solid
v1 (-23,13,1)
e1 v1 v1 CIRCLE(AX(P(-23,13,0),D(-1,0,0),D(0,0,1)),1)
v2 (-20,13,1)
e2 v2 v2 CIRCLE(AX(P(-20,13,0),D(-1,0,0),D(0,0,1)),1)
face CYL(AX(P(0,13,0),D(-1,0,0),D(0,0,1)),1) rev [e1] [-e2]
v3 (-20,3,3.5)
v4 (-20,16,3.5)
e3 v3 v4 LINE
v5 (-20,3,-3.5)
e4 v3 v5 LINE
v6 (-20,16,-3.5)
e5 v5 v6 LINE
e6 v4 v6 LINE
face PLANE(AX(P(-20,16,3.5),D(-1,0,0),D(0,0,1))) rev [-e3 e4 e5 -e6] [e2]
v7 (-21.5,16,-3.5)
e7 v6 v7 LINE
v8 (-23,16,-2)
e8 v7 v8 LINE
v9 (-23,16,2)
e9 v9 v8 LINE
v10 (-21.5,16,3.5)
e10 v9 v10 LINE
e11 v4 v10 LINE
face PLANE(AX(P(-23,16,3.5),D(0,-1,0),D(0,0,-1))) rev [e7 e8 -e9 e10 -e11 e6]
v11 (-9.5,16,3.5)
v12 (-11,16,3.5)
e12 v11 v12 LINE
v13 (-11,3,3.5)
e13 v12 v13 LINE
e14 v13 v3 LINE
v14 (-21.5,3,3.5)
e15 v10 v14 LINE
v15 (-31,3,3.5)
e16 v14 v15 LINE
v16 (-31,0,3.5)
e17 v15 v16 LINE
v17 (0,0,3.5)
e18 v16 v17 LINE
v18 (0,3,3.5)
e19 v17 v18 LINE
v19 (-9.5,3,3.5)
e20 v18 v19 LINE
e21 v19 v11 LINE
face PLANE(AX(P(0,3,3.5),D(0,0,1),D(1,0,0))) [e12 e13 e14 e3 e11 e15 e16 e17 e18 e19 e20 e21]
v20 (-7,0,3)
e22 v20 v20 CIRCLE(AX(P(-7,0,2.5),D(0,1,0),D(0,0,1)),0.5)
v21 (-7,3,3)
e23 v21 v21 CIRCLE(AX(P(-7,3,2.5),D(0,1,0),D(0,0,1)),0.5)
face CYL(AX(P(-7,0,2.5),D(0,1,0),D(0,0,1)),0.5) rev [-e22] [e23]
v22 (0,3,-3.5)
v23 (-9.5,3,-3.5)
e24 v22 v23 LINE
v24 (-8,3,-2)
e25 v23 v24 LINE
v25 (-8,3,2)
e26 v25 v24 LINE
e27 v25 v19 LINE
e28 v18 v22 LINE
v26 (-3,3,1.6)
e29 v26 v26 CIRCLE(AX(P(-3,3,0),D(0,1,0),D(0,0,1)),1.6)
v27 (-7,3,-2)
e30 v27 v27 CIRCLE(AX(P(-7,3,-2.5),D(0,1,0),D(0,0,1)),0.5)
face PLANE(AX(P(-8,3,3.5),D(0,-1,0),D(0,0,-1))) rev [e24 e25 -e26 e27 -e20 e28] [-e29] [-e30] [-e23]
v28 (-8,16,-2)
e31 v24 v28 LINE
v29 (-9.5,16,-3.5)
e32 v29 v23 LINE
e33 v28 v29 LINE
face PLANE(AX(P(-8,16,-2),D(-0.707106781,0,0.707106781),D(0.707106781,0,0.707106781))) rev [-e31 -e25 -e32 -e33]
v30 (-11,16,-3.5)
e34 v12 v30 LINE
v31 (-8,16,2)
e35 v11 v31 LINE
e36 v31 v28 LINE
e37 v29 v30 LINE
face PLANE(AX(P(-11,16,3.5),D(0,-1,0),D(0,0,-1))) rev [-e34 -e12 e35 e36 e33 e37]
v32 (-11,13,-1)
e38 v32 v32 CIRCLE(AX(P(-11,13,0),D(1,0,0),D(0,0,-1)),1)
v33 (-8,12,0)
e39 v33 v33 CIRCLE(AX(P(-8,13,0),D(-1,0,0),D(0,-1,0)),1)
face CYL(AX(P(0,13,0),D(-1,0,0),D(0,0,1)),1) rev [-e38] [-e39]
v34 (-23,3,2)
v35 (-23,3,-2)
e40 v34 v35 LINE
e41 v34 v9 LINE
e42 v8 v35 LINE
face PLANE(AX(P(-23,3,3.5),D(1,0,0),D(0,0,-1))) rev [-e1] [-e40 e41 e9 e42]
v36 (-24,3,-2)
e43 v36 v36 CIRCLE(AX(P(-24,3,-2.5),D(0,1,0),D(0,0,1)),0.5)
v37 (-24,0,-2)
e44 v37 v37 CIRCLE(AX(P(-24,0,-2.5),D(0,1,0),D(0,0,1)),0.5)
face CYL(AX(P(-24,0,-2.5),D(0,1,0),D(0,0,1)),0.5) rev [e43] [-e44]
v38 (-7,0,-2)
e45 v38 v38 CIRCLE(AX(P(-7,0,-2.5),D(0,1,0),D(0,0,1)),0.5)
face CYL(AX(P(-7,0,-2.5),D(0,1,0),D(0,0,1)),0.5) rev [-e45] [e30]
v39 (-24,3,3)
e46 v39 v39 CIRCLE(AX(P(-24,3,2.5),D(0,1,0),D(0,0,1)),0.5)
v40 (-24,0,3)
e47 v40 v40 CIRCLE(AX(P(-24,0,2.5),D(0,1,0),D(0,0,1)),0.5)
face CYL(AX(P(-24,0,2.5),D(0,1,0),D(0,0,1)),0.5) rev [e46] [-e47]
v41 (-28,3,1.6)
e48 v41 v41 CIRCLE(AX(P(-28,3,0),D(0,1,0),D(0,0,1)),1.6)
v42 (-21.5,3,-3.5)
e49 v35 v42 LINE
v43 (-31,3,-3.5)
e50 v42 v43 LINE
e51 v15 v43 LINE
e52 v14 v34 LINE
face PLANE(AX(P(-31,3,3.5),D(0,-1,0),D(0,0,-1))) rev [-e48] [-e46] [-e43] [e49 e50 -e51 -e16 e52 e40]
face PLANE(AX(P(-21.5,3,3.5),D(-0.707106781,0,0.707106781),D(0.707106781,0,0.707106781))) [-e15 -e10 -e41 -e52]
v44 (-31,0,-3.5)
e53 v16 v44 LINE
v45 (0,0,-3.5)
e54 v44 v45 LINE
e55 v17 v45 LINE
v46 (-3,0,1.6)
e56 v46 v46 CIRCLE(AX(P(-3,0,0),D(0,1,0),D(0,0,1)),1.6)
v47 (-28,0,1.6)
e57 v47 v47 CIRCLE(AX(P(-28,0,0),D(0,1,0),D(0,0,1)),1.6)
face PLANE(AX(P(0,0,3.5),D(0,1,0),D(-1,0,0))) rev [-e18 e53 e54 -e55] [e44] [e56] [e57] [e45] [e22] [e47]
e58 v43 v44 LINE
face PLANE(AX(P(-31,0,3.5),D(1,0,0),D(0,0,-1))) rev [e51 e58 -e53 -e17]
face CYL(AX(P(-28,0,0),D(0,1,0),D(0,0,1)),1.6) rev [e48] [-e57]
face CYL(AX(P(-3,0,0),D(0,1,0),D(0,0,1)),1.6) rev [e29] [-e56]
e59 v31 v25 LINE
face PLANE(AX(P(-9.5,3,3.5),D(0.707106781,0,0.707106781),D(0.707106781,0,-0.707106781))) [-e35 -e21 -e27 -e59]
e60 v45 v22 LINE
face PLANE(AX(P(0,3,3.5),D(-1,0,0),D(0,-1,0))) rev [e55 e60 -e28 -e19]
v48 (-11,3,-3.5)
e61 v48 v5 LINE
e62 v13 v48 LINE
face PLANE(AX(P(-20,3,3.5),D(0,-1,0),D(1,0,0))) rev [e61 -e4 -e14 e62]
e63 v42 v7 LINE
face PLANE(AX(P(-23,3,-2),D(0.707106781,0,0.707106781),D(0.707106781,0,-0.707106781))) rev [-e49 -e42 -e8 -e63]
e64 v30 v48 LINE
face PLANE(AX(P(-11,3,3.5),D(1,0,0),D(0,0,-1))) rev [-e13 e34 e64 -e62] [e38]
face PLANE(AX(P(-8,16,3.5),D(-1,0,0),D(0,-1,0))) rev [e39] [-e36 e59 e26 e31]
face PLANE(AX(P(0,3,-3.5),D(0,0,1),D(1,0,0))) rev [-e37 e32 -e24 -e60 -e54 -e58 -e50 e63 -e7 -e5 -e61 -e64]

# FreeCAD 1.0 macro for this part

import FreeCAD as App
import Part
import Sketcher

V = App.Vector


def edges_at(feature, points):
    """Names of the edges that pass closest to the given points."""
    edges = feature.Shape.Edges
    near = lambda p: min(range(len(edges)), key=lambda i: edges[i].distToShape(Part.Vertex(*p))[0])
    return sorted({f"Edge{near(p) + 1}" for p in points})

doc = App.newDocument("Part")
body = doc.addObject("PartDesign::Body", "Body")

sketch1 = body.newObject("Sketcher::SketchObject", "Sketch")
sketch1.AttachmentSupport = (doc.getObject("XY_Plane"), [""])
sketch1.MapMode = "FlatFace"
sketch1.addGeometry(Part.LineSegment(V(-31, 0, 0), V(0, 0, 0)), False)
sketch1.addGeometry(Part.LineSegment(V(0, 0, 0), V(0, 3, 0)), False)
sketch1.addGeometry(Part.LineSegment(V(0, 3, 0), V(-8, 3, 0)), False)
sketch1.addGeometry(Part.LineSegment(V(-8, 3, 0), V(-8, 16, 0)), False)
sketch1.addGeometry(Part.LineSegment(V(-8, 16, 0), V(-11, 16, 0)), False)
sketch1.addGeometry(Part.LineSegment(V(-11, 16, 0), V(-11, 3, 0)), False)
sketch1.addGeometry(Part.LineSegment(V(-11, 3, 0), V(-20, 3, 0)), False)
sketch1.addGeometry(Part.LineSegment(V(-20, 3, 0), V(-20, 16, 0)), False)
sketch1.addGeometry(Part.LineSegment(V(-20, 16, 0), V(-23, 16, 0)), False)
sketch1.addGeometry(Part.LineSegment(V(-23, 16, 0), V(-23, 3, 0)), False)
sketch1.addGeometry(Part.LineSegment(V(-23, 3, 0), V(-31, 3, 0)), False)
sketch1.addGeometry(Part.LineSegment(V(-31, 3, 0), V(-31, 0, 0)), False)
sketch1.addConstraint(Sketcher.Constraint("Coincident", 0, 2, 1, 1))
sketch1.addConstraint(Sketcher.Constraint("Coincident", 1, 2, 2, 1))
sketch1.addConstraint(Sketcher.Constraint("Coincident", 2, 2, 3, 1))
sketch1.addConstraint(Sketcher.Constraint("Coincident", 3, 2, 4, 1))
sketch1.addConstraint(Sketcher.Constraint("Coincident", 4, 2, 5, 1))
sketch1.addConstraint(Sketcher.Constraint("Coincident", 5, 2, 6, 1))
sketch1.addConstraint(Sketcher.Constraint("Coincident", 6, 2, 7, 1))
sketch1.addConstraint(Sketcher.Constraint("Coincident", 7, 2, 8, 1))
sketch1.addConstraint(Sketcher.Constraint("Coincident", 8, 2, 9, 1))
sketch1.addConstraint(Sketcher.Constraint("Coincident", 9, 2, 10, 1))
sketch1.addConstraint(Sketcher.Constraint("Coincident", 10, 2, 11, 1))
sketch1.addConstraint(Sketcher.Constraint("Coincident", 11, 2, 0, 1))
sketch1.addConstraint(Sketcher.Constraint("Horizontal", 0))
sketch1.addConstraint(Sketcher.Constraint("Vertical", 1))
sketch1.addConstraint(Sketcher.Constraint("Horizontal", 2))
sketch1.addConstraint(Sketcher.Constraint("Vertical", 3))
sketch1.addConstraint(Sketcher.Constraint("Horizontal", 4))
sketch1.addConstraint(Sketcher.Constraint("Vertical", 5))
sketch1.addConstraint(Sketcher.Constraint("Horizontal", 6))
sketch1.addConstraint(Sketcher.Constraint("Vertical", 7))
sketch1.addConstraint(Sketcher.Constraint("Horizontal", 8))
sketch1.addConstraint(Sketcher.Constraint("Vertical", 9))
sketch1.addConstraint(Sketcher.Constraint("Horizontal", 10))
sketch1.addConstraint(Sketcher.Constraint("Vertical", 11))
sketch1.addConstraint(Sketcher.Constraint("Coincident", 0, 2, -1, 1))
sketch1.addConstraint(Sketcher.Constraint("Horizontal", 2, 2, 5, 2))
sketch1.addConstraint(Sketcher.Constraint("Horizontal", 4, 2, 7, 2))
sketch1.addConstraint(Sketcher.Constraint("Horizontal", 6, 2, 9, 2))
sketch1.addConstraint(Sketcher.Constraint("Equal", 4, 8))
sketch1.addConstraint(Sketcher.Constraint("Equal", 2, 10))
sketch1.addConstraint(Sketcher.Constraint("Equal", 8, 1))
sketch1.addConstraint(Sketcher.Constraint("DistanceX", 0, 1, 0, 2, 31.0))
sketch1.addConstraint(Sketcher.Constraint("DistanceX", 2, 2, 2, 1, 8.0))
sketch1.addConstraint(Sketcher.Constraint("DistanceX", 4, 2, 4, 1, 3.0))
sketch1.addConstraint(Sketcher.Constraint("DistanceY", 3, 1, 3, 2, 13.0))
pad1 = body.newObject("PartDesign::Pad", "Pad")
pad1.Profile = sketch1
pad1.Length = 7
pad1.Midplane = True

sketch2 = body.newObject("Sketcher::SketchObject", "Sketch001")
sketch2.AttachmentSupport = (doc.getObject("XZ_Plane"), [""])
sketch2.MapMode = "FlatFace"
sketch2.AttachmentOffset = App.Placement(V(0, 0, -3), App.Rotation())
sketch2.addGeometry(Part.Circle(V(-28, 0, 0), V(0, 0, 1), 1.6), False)
sketch2.addGeometry(Part.Circle(V(-3, 0, 0), V(0, 0, 1), 1.6), False)
sketch2.addGeometry(Part.Circle(V(-24, -2.5, 0), V(0, 0, 1), 0.5), False)
sketch2.addGeometry(Part.Circle(V(-24, 2.5, 0), V(0, 0, 1), 0.5), False)
sketch2.addGeometry(Part.Circle(V(-7, 2.5, 0), V(0, 0, 1), 0.5), False)
sketch2.addGeometry(Part.Circle(V(-7, -2.5, 0), V(0, 0, 1), 0.5), False)
sketch2.addConstraint(Sketcher.Constraint("Equal", 0, 1))
sketch2.addConstraint(Sketcher.Constraint("Equal", 2, 3))
sketch2.addConstraint(Sketcher.Constraint("Equal", 3, 4))
sketch2.addConstraint(Sketcher.Constraint("Equal", 4, 5))
sketch2.addConstraint(Sketcher.Constraint("Symmetric", 2, 3, 3, 3, -1))
sketch2.addConstraint(Sketcher.Constraint("Symmetric", 4, 3, 5, 3, -1))
sketch2.addConstraint(Sketcher.Constraint("PointOnObject", 0, 3, -1))
sketch2.addConstraint(Sketcher.Constraint("PointOnObject", 1, 3, -1))
sketch2.addConstraint(Sketcher.Constraint("Horizontal", 3, 3, 4, 3))
sketch2.addConstraint(Sketcher.Constraint("Diameter", 2, 1.0))
sketch2.addConstraint(Sketcher.Constraint("Diameter", 0, 3.2))
sketch2.addConstraint(Sketcher.Constraint("DistanceX", 0, 3, -1, 1, 28.0))
sketch2.addConstraint(Sketcher.Constraint("DistanceX", 1, 3, -1, 1, 3.0))
sketch2.addConstraint(Sketcher.Constraint("DistanceX", 2, 3, -1, 1, 24.0))
sketch2.addConstraint(Sketcher.Constraint("DistanceX", 4, 3, -1, 1, 7.0))
sketch2.addConstraint(Sketcher.Constraint("DistanceY", 2, 3, 3, 3, 5.0))
pocket1 = body.newObject("PartDesign::Pocket", "Pocket")
pocket1.Profile = sketch2
pocket1.Type = "ThroughAll"
pocket1.Reversed = True

sketch3 = body.newObject("Sketcher::SketchObject", "Sketch002")
sketch3.AttachmentSupport = (doc.getObject("YZ_Plane"), [""])
sketch3.MapMode = "FlatFace"
sketch3.AttachmentOffset = App.Placement(V(0, 0, -23), App.Rotation())
sketch3.addGeometry(Part.Circle(V(13, 0, 0), V(0, 0, 1), 1), False)
sketch3.addConstraint(Sketcher.Constraint("PointOnObject", 0, 3, -1))
sketch3.addConstraint(Sketcher.Constraint("Diameter", 0, 2.0))
sketch3.addConstraint(Sketcher.Constraint("DistanceX", -1, 1, 0, 3, 13.0))
pocket2 = body.newObject("PartDesign::Pocket", "Pocket001")
pocket2.Profile = sketch3
pocket2.Type = "ThroughAll"
pocket2.Reversed = True
doc.recompute()

chamfer = body.newObject("PartDesign::Chamfer", "Chamfer")
chamfer.Base = (pocket2, edges_at(pocket2, [
    (-8, 9.5, 3.5),
    (-23, 9.5, -3.5),
    (-8, 9.5, -3.5),
    (-23, 9.5, 3.5),
]))
chamfer.Size = 1.5

doc.recompute()
